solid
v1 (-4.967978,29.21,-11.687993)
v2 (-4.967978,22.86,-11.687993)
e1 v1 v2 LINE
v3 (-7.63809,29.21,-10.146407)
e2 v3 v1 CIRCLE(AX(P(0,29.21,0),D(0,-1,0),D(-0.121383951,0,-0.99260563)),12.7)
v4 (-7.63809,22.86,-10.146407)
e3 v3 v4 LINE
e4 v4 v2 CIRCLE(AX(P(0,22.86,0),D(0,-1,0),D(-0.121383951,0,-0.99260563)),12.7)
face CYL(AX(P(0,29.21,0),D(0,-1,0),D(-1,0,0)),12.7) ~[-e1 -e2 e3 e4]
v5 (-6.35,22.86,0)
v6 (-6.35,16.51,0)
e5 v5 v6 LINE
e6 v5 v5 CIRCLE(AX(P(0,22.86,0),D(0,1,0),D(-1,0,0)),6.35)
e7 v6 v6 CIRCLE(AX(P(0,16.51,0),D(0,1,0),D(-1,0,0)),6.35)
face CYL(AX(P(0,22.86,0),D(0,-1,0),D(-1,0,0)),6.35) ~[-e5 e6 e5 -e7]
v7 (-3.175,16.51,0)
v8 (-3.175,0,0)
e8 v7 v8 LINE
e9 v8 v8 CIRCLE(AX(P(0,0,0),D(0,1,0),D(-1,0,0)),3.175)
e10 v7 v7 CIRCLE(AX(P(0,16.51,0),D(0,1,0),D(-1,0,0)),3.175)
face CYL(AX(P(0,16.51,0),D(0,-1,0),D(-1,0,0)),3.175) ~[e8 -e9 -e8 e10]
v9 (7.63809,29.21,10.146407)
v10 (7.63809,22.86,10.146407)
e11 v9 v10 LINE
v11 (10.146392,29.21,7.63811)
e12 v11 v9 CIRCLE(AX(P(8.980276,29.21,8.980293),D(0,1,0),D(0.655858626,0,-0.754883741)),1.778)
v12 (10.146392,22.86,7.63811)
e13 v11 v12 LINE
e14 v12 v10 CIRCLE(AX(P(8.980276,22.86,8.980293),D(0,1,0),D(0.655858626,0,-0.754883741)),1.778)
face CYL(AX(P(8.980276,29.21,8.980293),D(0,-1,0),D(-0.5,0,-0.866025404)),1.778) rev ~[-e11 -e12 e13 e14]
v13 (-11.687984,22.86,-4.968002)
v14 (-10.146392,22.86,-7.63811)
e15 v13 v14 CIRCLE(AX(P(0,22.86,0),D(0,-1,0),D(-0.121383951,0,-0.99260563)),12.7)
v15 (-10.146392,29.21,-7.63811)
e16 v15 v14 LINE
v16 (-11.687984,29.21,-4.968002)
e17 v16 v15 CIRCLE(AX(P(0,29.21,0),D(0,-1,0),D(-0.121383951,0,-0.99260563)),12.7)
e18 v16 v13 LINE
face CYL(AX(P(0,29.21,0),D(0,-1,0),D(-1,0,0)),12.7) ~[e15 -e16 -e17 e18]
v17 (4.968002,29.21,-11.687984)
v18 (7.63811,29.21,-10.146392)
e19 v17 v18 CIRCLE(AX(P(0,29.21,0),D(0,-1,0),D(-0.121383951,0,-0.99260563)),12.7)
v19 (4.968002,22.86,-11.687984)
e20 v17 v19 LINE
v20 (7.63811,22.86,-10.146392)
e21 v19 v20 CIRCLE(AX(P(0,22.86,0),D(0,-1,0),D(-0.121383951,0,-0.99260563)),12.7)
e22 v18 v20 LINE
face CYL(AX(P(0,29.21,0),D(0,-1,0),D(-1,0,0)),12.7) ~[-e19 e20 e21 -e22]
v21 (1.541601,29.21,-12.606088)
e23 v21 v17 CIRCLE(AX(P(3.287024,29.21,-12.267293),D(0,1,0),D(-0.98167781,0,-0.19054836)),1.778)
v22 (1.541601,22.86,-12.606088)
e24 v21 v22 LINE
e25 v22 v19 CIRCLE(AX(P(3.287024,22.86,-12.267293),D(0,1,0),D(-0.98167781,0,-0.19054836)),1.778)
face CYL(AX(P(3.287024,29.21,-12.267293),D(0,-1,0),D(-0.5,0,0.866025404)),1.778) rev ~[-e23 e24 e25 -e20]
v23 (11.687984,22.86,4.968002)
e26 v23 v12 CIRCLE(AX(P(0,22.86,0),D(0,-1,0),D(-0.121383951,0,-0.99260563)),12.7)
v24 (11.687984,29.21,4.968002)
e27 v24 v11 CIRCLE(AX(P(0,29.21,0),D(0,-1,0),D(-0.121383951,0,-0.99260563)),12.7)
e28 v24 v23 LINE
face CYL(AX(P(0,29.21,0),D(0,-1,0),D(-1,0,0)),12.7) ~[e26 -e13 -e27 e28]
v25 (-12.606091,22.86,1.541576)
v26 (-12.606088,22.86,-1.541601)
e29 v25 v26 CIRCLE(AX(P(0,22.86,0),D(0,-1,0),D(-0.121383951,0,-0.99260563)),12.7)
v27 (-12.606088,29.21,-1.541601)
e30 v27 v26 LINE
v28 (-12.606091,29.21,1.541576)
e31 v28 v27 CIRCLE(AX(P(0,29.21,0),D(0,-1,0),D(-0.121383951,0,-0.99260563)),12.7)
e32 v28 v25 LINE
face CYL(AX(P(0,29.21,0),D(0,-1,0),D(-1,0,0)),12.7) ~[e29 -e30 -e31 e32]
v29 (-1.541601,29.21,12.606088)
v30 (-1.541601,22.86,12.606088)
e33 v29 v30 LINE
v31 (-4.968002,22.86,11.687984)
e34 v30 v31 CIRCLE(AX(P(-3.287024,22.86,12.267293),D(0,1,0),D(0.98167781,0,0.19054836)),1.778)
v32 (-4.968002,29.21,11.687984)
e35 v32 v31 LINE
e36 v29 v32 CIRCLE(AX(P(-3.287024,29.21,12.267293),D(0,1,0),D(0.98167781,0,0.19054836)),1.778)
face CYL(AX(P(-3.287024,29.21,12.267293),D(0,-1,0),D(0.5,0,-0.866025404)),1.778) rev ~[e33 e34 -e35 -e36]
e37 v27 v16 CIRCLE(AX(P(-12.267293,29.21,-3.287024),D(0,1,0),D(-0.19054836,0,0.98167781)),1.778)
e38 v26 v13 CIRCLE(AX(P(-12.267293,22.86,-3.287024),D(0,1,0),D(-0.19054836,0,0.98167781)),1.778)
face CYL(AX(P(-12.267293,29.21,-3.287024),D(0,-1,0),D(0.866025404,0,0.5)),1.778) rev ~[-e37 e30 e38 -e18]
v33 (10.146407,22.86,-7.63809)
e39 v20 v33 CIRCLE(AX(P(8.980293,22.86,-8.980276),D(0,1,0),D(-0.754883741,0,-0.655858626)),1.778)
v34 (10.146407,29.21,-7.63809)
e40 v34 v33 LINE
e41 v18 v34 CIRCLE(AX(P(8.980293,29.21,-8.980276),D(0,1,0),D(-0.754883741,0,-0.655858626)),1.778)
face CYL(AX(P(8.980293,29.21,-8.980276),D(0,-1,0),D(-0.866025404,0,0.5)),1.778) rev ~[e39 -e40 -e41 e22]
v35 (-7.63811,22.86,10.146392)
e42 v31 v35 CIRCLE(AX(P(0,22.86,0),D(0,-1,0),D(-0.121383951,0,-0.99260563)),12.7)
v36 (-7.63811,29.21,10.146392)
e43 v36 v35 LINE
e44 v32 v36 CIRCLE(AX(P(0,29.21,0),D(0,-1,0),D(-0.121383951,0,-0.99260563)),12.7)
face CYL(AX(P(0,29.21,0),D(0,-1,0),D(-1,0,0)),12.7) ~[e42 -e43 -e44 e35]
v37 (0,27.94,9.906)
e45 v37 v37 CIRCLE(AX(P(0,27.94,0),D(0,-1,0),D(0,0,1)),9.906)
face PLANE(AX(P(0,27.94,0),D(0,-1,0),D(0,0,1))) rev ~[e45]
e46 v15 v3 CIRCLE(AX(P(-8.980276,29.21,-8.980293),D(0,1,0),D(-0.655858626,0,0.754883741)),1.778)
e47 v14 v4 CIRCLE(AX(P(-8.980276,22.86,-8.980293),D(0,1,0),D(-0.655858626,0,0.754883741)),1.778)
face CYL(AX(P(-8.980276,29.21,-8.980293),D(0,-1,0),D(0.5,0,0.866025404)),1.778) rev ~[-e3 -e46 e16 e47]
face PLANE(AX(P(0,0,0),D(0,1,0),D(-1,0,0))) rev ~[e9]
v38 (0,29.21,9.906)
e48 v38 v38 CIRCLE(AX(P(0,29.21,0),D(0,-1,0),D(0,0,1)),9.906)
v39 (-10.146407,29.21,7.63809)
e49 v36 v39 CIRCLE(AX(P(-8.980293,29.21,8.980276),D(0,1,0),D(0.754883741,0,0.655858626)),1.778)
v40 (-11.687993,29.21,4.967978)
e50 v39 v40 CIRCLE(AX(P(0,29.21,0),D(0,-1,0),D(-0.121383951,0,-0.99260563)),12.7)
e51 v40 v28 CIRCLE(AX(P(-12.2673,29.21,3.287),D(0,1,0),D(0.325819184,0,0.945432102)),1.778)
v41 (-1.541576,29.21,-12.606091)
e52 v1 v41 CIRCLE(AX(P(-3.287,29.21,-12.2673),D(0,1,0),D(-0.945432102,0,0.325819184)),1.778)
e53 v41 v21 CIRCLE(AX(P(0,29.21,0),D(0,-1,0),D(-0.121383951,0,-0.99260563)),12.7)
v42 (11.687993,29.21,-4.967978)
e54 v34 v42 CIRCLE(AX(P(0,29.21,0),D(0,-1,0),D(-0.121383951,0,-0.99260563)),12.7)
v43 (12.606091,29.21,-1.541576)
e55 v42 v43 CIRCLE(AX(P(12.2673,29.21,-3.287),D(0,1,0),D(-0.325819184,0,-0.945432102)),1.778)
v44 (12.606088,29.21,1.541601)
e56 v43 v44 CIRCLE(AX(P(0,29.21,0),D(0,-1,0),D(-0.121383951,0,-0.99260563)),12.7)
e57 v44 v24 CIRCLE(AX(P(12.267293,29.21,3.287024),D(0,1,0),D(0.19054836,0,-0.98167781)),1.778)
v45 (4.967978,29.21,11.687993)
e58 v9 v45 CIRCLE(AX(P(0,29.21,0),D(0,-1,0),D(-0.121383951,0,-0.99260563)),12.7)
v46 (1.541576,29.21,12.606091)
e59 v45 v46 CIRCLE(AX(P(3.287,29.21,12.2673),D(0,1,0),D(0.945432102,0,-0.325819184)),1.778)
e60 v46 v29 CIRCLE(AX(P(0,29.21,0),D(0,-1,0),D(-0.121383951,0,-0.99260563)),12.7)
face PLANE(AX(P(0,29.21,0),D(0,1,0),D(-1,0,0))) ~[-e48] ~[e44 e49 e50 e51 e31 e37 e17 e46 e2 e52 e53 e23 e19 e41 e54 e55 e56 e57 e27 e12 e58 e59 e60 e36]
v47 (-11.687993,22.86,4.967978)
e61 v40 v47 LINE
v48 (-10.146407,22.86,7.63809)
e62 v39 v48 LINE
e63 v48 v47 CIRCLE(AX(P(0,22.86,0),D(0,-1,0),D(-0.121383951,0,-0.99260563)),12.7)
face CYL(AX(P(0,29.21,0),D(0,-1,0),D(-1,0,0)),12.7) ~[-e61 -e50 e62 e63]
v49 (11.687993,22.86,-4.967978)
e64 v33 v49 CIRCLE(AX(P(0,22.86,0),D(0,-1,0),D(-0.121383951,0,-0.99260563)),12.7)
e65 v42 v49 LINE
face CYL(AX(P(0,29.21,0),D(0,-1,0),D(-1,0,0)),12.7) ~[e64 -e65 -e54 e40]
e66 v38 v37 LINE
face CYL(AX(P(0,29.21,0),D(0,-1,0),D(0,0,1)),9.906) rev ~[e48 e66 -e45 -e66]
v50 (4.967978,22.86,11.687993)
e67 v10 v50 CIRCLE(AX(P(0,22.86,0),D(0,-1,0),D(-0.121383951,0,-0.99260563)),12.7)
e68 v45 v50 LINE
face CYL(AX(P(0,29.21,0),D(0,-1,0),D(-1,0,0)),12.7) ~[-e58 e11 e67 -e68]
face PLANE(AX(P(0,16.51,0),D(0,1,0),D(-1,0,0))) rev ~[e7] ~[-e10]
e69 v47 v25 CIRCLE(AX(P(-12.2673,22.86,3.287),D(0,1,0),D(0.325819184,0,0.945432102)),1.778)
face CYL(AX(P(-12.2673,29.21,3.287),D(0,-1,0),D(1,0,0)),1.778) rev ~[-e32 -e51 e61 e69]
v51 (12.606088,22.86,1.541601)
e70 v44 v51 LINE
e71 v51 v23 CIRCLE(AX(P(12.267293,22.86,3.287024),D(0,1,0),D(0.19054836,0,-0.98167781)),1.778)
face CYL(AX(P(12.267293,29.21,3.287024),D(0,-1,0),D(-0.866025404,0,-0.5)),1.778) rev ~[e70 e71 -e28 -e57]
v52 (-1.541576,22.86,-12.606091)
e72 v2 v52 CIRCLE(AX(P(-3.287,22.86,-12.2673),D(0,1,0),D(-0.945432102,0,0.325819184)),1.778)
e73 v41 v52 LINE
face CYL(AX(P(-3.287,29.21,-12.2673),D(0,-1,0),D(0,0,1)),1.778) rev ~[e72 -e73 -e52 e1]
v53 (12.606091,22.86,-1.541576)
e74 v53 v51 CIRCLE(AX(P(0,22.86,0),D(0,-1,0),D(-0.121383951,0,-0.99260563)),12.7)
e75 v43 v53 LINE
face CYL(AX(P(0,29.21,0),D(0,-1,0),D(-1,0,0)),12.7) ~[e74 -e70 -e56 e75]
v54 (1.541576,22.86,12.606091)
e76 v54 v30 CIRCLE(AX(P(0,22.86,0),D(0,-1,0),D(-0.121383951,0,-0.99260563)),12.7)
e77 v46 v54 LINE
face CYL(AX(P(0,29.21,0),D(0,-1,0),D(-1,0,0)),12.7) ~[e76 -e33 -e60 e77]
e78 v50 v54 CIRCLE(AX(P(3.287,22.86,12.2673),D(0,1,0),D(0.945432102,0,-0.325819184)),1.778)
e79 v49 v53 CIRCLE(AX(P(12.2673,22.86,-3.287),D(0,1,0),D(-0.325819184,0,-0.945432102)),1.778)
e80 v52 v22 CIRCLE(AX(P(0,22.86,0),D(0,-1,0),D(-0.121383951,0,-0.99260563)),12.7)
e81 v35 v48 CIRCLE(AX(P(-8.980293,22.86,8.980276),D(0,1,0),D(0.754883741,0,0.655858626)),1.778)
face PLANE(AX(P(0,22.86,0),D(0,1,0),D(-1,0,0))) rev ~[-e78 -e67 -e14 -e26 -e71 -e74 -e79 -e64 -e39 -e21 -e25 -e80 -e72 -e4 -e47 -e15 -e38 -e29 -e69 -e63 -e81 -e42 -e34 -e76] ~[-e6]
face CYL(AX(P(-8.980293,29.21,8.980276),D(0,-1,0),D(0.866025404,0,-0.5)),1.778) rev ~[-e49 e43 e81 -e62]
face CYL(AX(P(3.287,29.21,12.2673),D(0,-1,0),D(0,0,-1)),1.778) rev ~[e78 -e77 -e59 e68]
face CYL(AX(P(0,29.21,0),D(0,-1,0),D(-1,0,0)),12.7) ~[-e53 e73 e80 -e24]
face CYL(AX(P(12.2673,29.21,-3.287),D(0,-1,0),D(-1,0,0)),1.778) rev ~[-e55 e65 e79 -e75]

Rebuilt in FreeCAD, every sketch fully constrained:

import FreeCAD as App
import Part
import Sketcher

V = App.Vector
Q = App.Units.Quantity


def add_polygon(sketch, points):
    """Adds a closed chain of lines whose ends are joined by coincident constraints."""
    first, n = sketch.GeometryCount, len(points)
    for a, b in zip(points, points[1:] + points[:1]):
        sketch.addGeometry(Part.LineSegment(App.Vector(*a, 0), App.Vector(*b, 0)), False)
    for i in range(n):
        sketch.addConstraint(Sketcher.Constraint("Coincident", first + i, 2, first + (i + 1) % n, 1))

doc = App.newDocument("Part")
params = doc.addObject("Spreadsheet::Sheet", "Params")
for row, (alias, value) in enumerate([
    ("sketch1_width", "0.5 in"),
    ("sketch1_width2", "0.25 in"),
    ("sketch1_height", "1.15 in"),
    ("revolution_angle", "360 deg"),
    ("sketch2_diameter", "0.14 in"),
    ("hole_diameter", "0.14 in"),
    ("sketch3_diameter", "0.78 in"),
    ("hole2_diameter", "0.78 in"),
    ("hole2_depth", "0.05 in"),
], start=1):
    params.set(f"A{row}", alias)
    params.set(f"B{row}", "=" + value)
    params.setAlias(f"B{row}", alias)

body = doc.addObject("PartDesign::Body", "Body")

# Sketch on XY plane
sketch1 = body.newObject("Sketcher::SketchObject", "Sketch")
sketch1.AttachmentSupport = (doc.getObject("XY_Plane"), [""])
sketch1.MapMode = "FlatFace"
add_polygon(sketch1, [(-3.2, 0), (0, 0), (0, 29.2), (-12.7, 29.2), (-12.7, 22.9), (-6.3, 22.9), (-6.3, 16.5), (-3.2, 16.5)])  # lines 0-7
sketch1.addConstraint(Sketcher.Constraint("Horizontal", 0))
sketch1.addConstraint(Sketcher.Constraint("Vertical", 1))
sketch1.addConstraint(Sketcher.Constraint("Horizontal", 2))
sketch1.addConstraint(Sketcher.Constraint("Vertical", 3))
sketch1.addConstraint(Sketcher.Constraint("Horizontal", 4))
sketch1.addConstraint(Sketcher.Constraint("Vertical", 5))
sketch1.addConstraint(Sketcher.Constraint("Horizontal", 6))
sketch1.addConstraint(Sketcher.Constraint("Vertical", 7))
sketch1.addConstraint(Sketcher.Constraint("Coincident", 0, 2, -1, 1))
sketch1.addConstraint(Sketcher.Constraint("Equal", 0, 6))
sketch1.addConstraint(Sketcher.Constraint("Equal", 4, 3))
sketch1.addConstraint(Sketcher.Constraint("Equal", 3, 5))
sketch1.addConstraint(Sketcher.Constraint("DistanceX", 2, 2, 2, 1, Q("0.5 in")))
sketch1.addConstraint(Sketcher.Constraint("DistanceX", 4, 1, 4, 2, Q("0.25 in")))
sketch1.addConstraint(Sketcher.Constraint("DistanceY", 1, 1, 1, 2, Q("1.15 in")))
sketch1.setExpression("Constraints[20]", "Params.sketch1_width")
sketch1.setExpression("Constraints[21]", "Params.sketch1_width2")
sketch1.setExpression("Constraints[22]", "Params.sketch1_height")
revolution = body.newObject("PartDesign::Revolution", "Revolution")
revolution.Profile = sketch1
revolution.ReferenceAxis = (sketch1, ["V_Axis"])
revolution.setExpression("Angle", "Params.revolution_angle")

# Sketch on XZ plane
sketch2 = body.newObject("Sketcher::SketchObject", "Sketch001")
sketch2.AttachmentSupport = (doc.getObject("XZ_Plane"), [""])
sketch2.MapMode = "FlatFace"
sketch2.AttachmentOffset = App.Placement(V(0, 0, -1.15 * 25.4), App.Rotation())
sketch2.addGeometry(Part.Circle(V(-3.3, -12.3, 0), V(0, 0, 1), 1.8), False)
sketch2.addConstraint(Sketcher.Constraint("Diameter", 0, Q("0.14 in")))
sketch2.addConstraint(Sketcher.Constraint("DistanceX", 0, 3, -1, 1, Q("0.1294 in")))
sketch2.addConstraint(Sketcher.Constraint("DistanceY", 0, 3, -1, 1, Q("12.2673 mm")))
sketch2.setExpression("Constraints[0]", "Params.sketch2_diameter")
doc.recompute()
hole = body.newObject("PartDesign::Hole", "Hole")
hole.Profile = sketch2
hole.ThreadType = "None"
hole.setExpression("Diameter", "Params.hole_diameter")
hole.DepthType = "ThroughAll"
hole.Reversed = True
doc.recompute()

polarpattern = body.newObject("PartDesign::PolarPattern", "PolarPattern")
polarpattern.Originals = [hole]
polarpattern.Axis = (doc.getObject("Y_Axis"), [""])
polarpattern.Angle = 360
polarpattern.Occurrences = 12
body.Tip = polarpattern

# Sketch on XZ plane
sketch3 = body.newObject("Sketcher::SketchObject", "Sketch002")
sketch3.AttachmentSupport = (doc.getObject("XZ_Plane"), [""])
sketch3.MapMode = "FlatFace"
sketch3.AttachmentOffset = App.Placement(V(0, 0, -1.15 * 25.4), App.Rotation())
sketch3.addGeometry(Part.Circle(V(0, 0, 0), V(0, 0, 1), 10), False)
sketch3.addConstraint(Sketcher.Constraint("Coincident", 0, 3, -1, 1))
sketch3.addConstraint(Sketcher.Constraint("Diameter", 0, Q("0.78 in")))
sketch3.setExpression("Constraints[1]", "Params.sketch3_diameter")
doc.recompute()
hole2 = body.newObject("PartDesign::Hole", "Hole001")
hole2.Profile = sketch3
hole2.ThreadType = "None"
hole2.setExpression("Diameter", "Params.hole2_diameter")
hole2.DepthType = "Dimension"
hole2.setExpression("Depth", "Params.hole2_depth")
hole2.DrillPoint = "Flat"
hole2.Reversed = True

doc.recompute()
